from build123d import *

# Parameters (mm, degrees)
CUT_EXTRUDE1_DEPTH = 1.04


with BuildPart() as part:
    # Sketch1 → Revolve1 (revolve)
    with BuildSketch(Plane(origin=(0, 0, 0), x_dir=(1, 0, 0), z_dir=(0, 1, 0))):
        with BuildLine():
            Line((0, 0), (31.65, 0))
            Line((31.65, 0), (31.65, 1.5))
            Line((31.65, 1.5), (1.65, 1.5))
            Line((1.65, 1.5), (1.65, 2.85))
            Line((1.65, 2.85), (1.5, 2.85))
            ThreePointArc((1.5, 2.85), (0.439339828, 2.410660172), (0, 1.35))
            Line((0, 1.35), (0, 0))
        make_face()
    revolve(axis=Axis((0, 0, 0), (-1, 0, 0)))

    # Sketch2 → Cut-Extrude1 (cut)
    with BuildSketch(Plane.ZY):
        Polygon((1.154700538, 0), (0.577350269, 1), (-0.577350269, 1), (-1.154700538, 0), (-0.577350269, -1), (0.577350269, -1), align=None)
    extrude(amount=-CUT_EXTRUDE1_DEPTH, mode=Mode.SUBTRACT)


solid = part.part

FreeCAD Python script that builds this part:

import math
import FreeCAD as App
import Part
import Sketcher
Q = App.Units.Quantity

doc = App.newDocument("Part")
body = doc.addObject("PartDesign::Body", "Body")

sketch1 = body.newObject("Sketcher::SketchObject", "Sketch")
sketch1.AttachmentSupport = (doc.getObject("XZ_Plane"), [""])
sketch1.MapMode = "FlatFace"
sketch1.addGeometry([
    Part.LineSegment(App.Vector(0, 0, 0), App.Vector(31.65, 0, 0)),
    Part.LineSegment(App.Vector(31.65, 0, 0), App.Vector(31.65, -1.5, 0)),
    Part.LineSegment(App.Vector(31.65, -1.5, 0), App.Vector(1.65, -1.5, 0)),
    Part.LineSegment(App.Vector(1.65, -1.5, 0), App.Vector(1.65, -2.85, 0)),
    Part.LineSegment(App.Vector(1.65, -2.85, 0), App.Vector(1.5, -2.85, 0)),
    Part.ArcOfCircle(Part.Circle(App.Vector(1.5, -1.35, 0), App.Vector(0, 0, 1), 1.5), math.radians(180), math.radians(270)),
    Part.LineSegment(App.Vector(0, -1.35, 0), App.Vector(0, 0, 0)),
], False)
sketch1.addConstraint([
    Sketcher.Constraint("Coincident", 0, 2, 1, 1),
    Sketcher.Constraint("Coincident", 1, 2, 2, 1),
    Sketcher.Constraint("Coincident", 2, 2, 3, 1),
    Sketcher.Constraint("Coincident", 3, 2, 4, 1),
    Sketcher.Constraint("Tangent", 4, 2, 5, 2),
    Sketcher.Constraint("Tangent", 5, 1, 6, 1),
    Sketcher.Constraint("Coincident", 6, 2, 0, 1),
    Sketcher.Constraint("Horizontal", 0),
    Sketcher.Constraint("Vertical", 1),
    Sketcher.Constraint("Horizontal", 2),
    Sketcher.Constraint("Vertical", 3),
    Sketcher.Constraint("Horizontal", 4),
    Sketcher.Constraint("Vertical", 6),
    Sketcher.Constraint("Coincident", 6, 2, -1, 1),
    Sketcher.Constraint("Equal", 3, 6),
    Sketcher.Constraint("Radius", 5, Q("1.5 mm")),
    Sketcher.Constraint("DistanceX", 2, 2, 2, 1, Q("30 mm")),
    Sketcher.Constraint("DistanceX", 0, 1, 0, 2, Q("31.65 mm")),
    Sketcher.Constraint("DistanceY", 3, 2, 3, 1, Q("1.35 mm")),
])
revolution = body.newObject("PartDesign::Revolution", "Revolution")
revolution.Profile = sketch1
revolution.ReferenceAxis = (sketch1, ["H_Axis"])
revolution.Angle = 360

sketch2 = body.newObject("Sketcher::SketchObject", "Sketch001")
sketch2.AttachmentSupport = (doc.getObject("YZ_Plane"), [""])
sketch2.MapMode = "FlatFace"
sketch2.addGeometry([
    Part.LineSegment(App.Vector(0, 1.154701, 0), App.Vector(1, 0.57735, 0)),
    Part.LineSegment(App.Vector(1, 0.57735, 0), App.Vector(1, -0.57735, 0)),
    Part.LineSegment(App.Vector(1, -0.57735, 0), App.Vector(0, -1.154701, 0)),
    Part.LineSegment(App.Vector(0, -1.154701, 0), App.Vector(-1, -0.57735, 0)),
    Part.LineSegment(App.Vector(-1, -0.57735, 0), App.Vector(-1, 0.57735, 0)),
    Part.LineSegment(App.Vector(-1, 0.57735, 0), App.Vector(0, 1.154701, 0)),
], False)
sketch2.addConstraint([
    Sketcher.Constraint("Coincident", 0, 2, 1, 1),
    Sketcher.Constraint("Coincident", 1, 2, 2, 1),
    Sketcher.Constraint("Coincident", 2, 2, 3, 1),
    Sketcher.Constraint("Coincident", 3, 2, 4, 1),
    Sketcher.Constraint("Coincident", 4, 2, 5, 1),
    Sketcher.Constraint("Coincident", 5, 2, 0, 1),
    Sketcher.Constraint("Vertical", 1),
    Sketcher.Constraint("Vertical", 4),
    Sketcher.Constraint("Symmetric", 0, 2, 3, 2, -1, 1),
    Sketcher.Constraint("Symmetric", 2, 2, 5, 2, -1, 1),
    Sketcher.Constraint("PointOnObject", 2, 2, -2),
    Sketcher.Constraint("Parallel", 2, 5),
    Sketcher.Constraint("Horizontal", 1, 2, 3, 2),
    Sketcher.Constraint("Angle", 0, Q("-30 deg")),
    Sketcher.Constraint("DistanceX", -1, 1, 0, 2, Q("1 mm")),
    Sketcher.Constraint("DistanceY", 1, 2, 1, 1, Q("1.154701 mm")),
])
pocket1 = body.newObject("PartDesign::Pocket", "Pocket")
pocket1.Profile = sketch2
pocket1.Length = 1.04
pocket1.Reversed = True

doc.recompute()
